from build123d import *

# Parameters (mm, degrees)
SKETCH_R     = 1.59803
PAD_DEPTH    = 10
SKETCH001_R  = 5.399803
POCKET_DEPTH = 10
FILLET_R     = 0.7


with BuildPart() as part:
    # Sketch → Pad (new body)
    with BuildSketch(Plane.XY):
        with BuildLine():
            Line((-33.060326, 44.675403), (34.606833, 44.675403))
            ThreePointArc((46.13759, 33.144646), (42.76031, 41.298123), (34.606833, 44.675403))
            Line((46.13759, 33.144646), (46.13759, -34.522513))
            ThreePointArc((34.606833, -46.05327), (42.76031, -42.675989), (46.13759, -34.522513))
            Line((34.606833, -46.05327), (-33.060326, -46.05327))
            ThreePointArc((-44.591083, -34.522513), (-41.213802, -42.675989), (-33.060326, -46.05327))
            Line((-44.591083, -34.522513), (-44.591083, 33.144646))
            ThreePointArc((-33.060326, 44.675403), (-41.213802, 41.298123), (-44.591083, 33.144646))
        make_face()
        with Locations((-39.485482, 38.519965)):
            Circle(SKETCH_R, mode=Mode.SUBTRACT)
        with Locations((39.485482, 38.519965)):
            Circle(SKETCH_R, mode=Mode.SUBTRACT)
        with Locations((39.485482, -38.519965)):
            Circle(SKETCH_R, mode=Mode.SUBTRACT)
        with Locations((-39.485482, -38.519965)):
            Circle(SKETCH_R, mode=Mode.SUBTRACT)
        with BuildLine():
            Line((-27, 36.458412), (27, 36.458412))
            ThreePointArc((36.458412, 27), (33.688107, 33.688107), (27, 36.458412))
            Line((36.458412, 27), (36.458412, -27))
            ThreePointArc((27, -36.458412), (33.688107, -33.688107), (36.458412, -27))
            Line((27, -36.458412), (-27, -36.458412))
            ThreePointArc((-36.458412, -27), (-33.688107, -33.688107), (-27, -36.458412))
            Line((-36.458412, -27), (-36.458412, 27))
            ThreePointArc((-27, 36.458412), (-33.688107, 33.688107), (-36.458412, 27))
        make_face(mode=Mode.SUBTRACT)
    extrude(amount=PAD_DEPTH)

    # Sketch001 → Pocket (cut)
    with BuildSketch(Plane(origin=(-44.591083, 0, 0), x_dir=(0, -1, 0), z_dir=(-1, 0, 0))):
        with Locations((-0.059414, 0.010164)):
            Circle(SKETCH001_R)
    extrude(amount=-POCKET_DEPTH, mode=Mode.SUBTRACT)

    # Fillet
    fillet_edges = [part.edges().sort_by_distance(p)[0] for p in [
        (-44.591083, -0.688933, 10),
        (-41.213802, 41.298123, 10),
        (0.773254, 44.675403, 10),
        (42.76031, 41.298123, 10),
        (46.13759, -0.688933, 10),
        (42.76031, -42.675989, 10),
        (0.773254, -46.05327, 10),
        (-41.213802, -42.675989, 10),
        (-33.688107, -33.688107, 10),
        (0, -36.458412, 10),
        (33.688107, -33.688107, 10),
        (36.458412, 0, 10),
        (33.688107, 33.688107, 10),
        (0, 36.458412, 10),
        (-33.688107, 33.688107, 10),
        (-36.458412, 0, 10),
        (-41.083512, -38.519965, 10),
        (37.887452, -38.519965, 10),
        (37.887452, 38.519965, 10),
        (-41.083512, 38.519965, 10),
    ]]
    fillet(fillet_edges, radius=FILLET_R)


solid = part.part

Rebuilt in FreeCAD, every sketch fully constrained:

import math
import FreeCAD as App
import Part
import Sketcher


def edges_at(feature, points):
    """Names of the edges that pass closest to the given points."""
    edges = feature.Shape.Edges
    near = lambda p: min(range(len(edges)), key=lambda i: edges[i].distToShape(Part.Vertex(*p))[0])
    return sorted({f"Edge{near(p) + 1}" for p in points})

doc = App.newDocument("Part")
body = doc.addObject("PartDesign::Body", "Body")

# Sketch on XY plane
sketch1 = body.newObject("Sketcher::SketchObject", "Sketch")
sketch1.AttachmentSupport = (doc.getObject("XY_Plane"), [""])
sketch1.MapMode = "FlatFace"
sketch1.addGeometry([
    Part.LineSegment(App.Vector(34.6, 44.7, 0), App.Vector(-33.1, 44.7, 0)),  # 0
    Part.ArcOfCircle(Part.Circle(App.Vector(-33.1, 33.1, 0), App.Vector(0, 0, 1), 11.5), math.radians(90), math.radians(180)),  # 1
    Part.LineSegment(App.Vector(-44.6, 33.1, 0), App.Vector(-44.6, -34.5, 0)),  # 2
    Part.ArcOfCircle(Part.Circle(App.Vector(-33.1, -34.5, 0), App.Vector(0, 0, 1), 11.5), math.radians(-180), math.radians(-90)),  # 3
    Part.LineSegment(App.Vector(-33.1, -46.1, 0), App.Vector(34.6, -46.1, 0)),  # 4
    Part.ArcOfCircle(Part.Circle(App.Vector(34.6, -34.5, 0), App.Vector(0, 0, 1), 11.5), math.radians(-90), math.radians(0)),  # 5
    Part.LineSegment(App.Vector(46.1, -34.5, 0), App.Vector(46.1, 33.1, 0)),  # 6
    Part.ArcOfCircle(Part.Circle(App.Vector(34.6, 33.1, 0), App.Vector(0, 0, 1), 11.5), math.radians(0), math.radians(90)),  # 7
    Part.Circle(App.Vector(39.5, -38.5, 0), App.Vector(0, 0, 1), 1.6),  # 8
    Part.Circle(App.Vector(-39.5, -38.5, 0), App.Vector(0, 0, 1), 1.6),  # 9
    Part.Circle(App.Vector(39.5, 38.5, 0), App.Vector(0, 0, 1), 1.6),  # 10
    Part.LineSegment(App.Vector(-27, 36.5, 0), App.Vector(27, 36.5, 0)),  # 11
    Part.ArcOfCircle(Part.Circle(App.Vector(27, 27, 0), App.Vector(0, 0, 1), 9.5), math.radians(0), math.radians(90)),  # 12
    Part.LineSegment(App.Vector(36.5, 27, 0), App.Vector(36.5, -27, 0)),  # 13
    Part.ArcOfCircle(Part.Circle(App.Vector(27, -27, 0), App.Vector(0, 0, 1), 9.5), math.radians(-90), math.radians(0)),  # 14
    Part.LineSegment(App.Vector(27, -36.5, 0), App.Vector(-27, -36.5, 0)),  # 15
    Part.ArcOfCircle(Part.Circle(App.Vector(-27, -27, 0), App.Vector(0, 0, 1), 9.5), math.radians(-180), math.radians(-90)),  # 16
    Part.LineSegment(App.Vector(-36.5, -27, 0), App.Vector(-36.5, 27, 0)),  # 17
    Part.ArcOfCircle(Part.Circle(App.Vector(-27, 27, 0), App.Vector(0, 0, 1), 9.5), math.radians(90), math.radians(180)),  # 18
    Part.Circle(App.Vector(-39.5, 38.5, 0), App.Vector(0, 0, 1), 1.6),  # 19
], False)
sketch1.addConstraint([
    Sketcher.Constraint("Tangent", 0, 2, 1, 1),
    Sketcher.Constraint("Tangent", 1, 2, 2, 1),
    Sketcher.Constraint("Tangent", 2, 2, 3, 1),
    Sketcher.Constraint("Tangent", 3, 2, 4, 1),
    Sketcher.Constraint("Tangent", 4, 2, 5, 1),
    Sketcher.Constraint("Tangent", 5, 2, 6, 1),
    Sketcher.Constraint("Tangent", 6, 2, 7, 1),
    Sketcher.Constraint("Tangent", 7, 2, 0, 1),
    Sketcher.Constraint("Tangent", 11, 2, 12, 2),
    Sketcher.Constraint("Tangent", 12, 1, 13, 1),
    Sketcher.Constraint("Tangent", 13, 2, 14, 2),
    Sketcher.Constraint("Tangent", 14, 1, 15, 1),
    Sketcher.Constraint("Tangent", 15, 2, 16, 2),
    Sketcher.Constraint("Tangent", 16, 1, 17, 1),
    Sketcher.Constraint("Tangent", 17, 2, 18, 2),
    Sketcher.Constraint("Tangent", 18, 1, 11, 1),
    Sketcher.Constraint("Horizontal", 0),
    Sketcher.Constraint("Vertical", 2),
    Sketcher.Constraint("Horizontal", 4),
    Sketcher.Constraint("Vertical", 6),
    Sketcher.Constraint("Horizontal", 11),
    Sketcher.Constraint("Vertical", 13),
    Sketcher.Constraint("Horizontal", 15),
    Sketcher.Constraint("Vertical", 17),
    Sketcher.Constraint("Equal", 1, 3),
    Sketcher.Constraint("Equal", 3, 5),
    Sketcher.Constraint("Equal", 5, 7),
    Sketcher.Constraint("Equal", 8, 9),
    Sketcher.Constraint("Equal", 9, 10),
    Sketcher.Constraint("Equal", 12, 14),
    Sketcher.Constraint("Equal", 14, 16),
    Sketcher.Constraint("Equal", 16, 18),
    Sketcher.Constraint("Equal", 10, 19),
    Sketcher.Constraint("Symmetric", 9, 3, 10, 3, -1, 1),
    Sketcher.Constraint("Symmetric", 12, 3, 16, 3, -1, 1),
    Sketcher.Constraint("Symmetric", 8, 3, 19, 3, -1, 1),
    Sketcher.Constraint("Symmetric", 8, 3, 9, 3, -2),
    Sketcher.Constraint("Equal", 4, 2),
    Sketcher.Constraint("Equal", 15, 13),
    Sketcher.Constraint("DistanceX", 11, 1, 11, 2, 54.0),
    Sketcher.Constraint("Diameter", 8, 3.19606),
    Sketcher.Constraint("Radius", 3, 11.530759),
    Sketcher.Constraint("Radius", 12, 9.458413),
    Sketcher.Constraint("DistanceX", 0, 2, 0, 1, 67.667159),
    Sketcher.Constraint("DistanceX", 1, 2, 19, 3, 5.105601),
    Sketcher.Constraint("DistanceY", 14, 1, 5, 3, 1.935899),
    Sketcher.Constraint("DistanceX", -1, 1, 8, 3, 39.485482),
    Sketcher.Constraint("DistanceY", 8, 3, 5, 3, 3.997452),
])
pad1 = body.newObject("PartDesign::Pad", "Pad")
pad1.Profile = sketch1
pad1.Length = 10

# Sketch on YZ plane
sketch2 = body.newObject("Sketcher::SketchObject", "Sketch001")
sketch2.AttachmentSupport = (doc.getObject("YZ_Plane"), [""])
sketch2.MapMode = "FlatFace"
sketch2.AttachmentOffset = App.Placement(App.Vector(0, 0, -44.591083), App.Rotation())
sketch2.addGeometry(Part.Circle(App.Vector(0, 0, 0), App.Vector(0, 0, 1), 5), False)
sketch2.addConstraint([
    Sketcher.Constraint("Diameter", 0, 10.799606),
    Sketcher.Constraint("DistanceX", -1, 1, 0, 3, 0.059414),
    Sketcher.Constraint("DistanceY", -1, 1, 0, 3, 0.010164),
])
pocket1 = body.newObject("PartDesign::Pocket", "Pocket")
pocket1.Profile = sketch2
pocket1.Length = 10
pocket1.Reversed = True
doc.recompute()

fillet = body.newObject("PartDesign::Fillet", "Fillet")
fillet.Base = (pocket1, edges_at(pocket1, [
    (-44.591, -0.689, 10),
    (-41.214, 41.298, 10),
    (0.773, 44.675, 10),
    (42.76, 41.298, 10),
    (46.138, -0.689, 10),
    (42.76, -42.676, 10),
    (0.773, -46.053, 10),
    (-41.214, -42.676, 10),
    (-33.688, -33.688, 10),
    (0, -36.458, 10),
    (33.688, -33.688, 10),
    (36.458, 0, 10),
    (33.688, 33.688, 10),
    (0, 36.458, 10),
    (-33.688, 33.688, 10),
    (-36.458, 0, 10),
    (-41.084, -38.52, 10),
    (37.887, -38.52, 10),
    (37.887, 38.52, 10),
    (-41.084, 38.52, 10),
]))
fillet.Radius = 0.7

doc.recompute()
